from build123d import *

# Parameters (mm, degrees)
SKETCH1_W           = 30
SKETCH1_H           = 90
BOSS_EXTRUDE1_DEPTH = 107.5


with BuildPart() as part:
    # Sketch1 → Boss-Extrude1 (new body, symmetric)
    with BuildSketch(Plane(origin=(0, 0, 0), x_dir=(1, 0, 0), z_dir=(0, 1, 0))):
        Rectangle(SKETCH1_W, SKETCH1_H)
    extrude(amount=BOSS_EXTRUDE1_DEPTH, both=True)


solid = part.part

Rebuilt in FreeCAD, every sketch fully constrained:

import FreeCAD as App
import Part
import Sketcher


def add_polygon(sketch, points):
    """Adds a closed chain of lines whose ends are joined by coincident constraints."""
    first, n = sketch.GeometryCount, len(points)
    for a, b in zip(points, points[1:] + points[:1]):
        sketch.addGeometry(Part.LineSegment(App.Vector(*a, 0), App.Vector(*b, 0)), False)
    for i in range(n):
        sketch.addConstraint(Sketcher.Constraint("Coincident", first + i, 2, first + (i + 1) % n, 1))

doc = App.newDocument("Part")
body = doc.addObject("PartDesign::Body", "Body")

sketch1 = doc.addObject("Sketcher::SketchObject", "Sketch")
body.addObject(sketch1)
sketch1.AttachmentSupport = (doc.XZ_Plane, [""])
sketch1.MapMode = "FlatFace"
add_polygon(sketch1, [(-15, -45), (-15, 45), (15, 45), (15, -45)])
sketch1.addConstraint(Sketcher.Constraint("Vertical", 0))
sketch1.addConstraint(Sketcher.Constraint("Horizontal", 1))
sketch1.addConstraint(Sketcher.Constraint("Vertical", 2))
sketch1.addConstraint(Sketcher.Constraint("Horizontal", 3))
sketch1.addConstraint(Sketcher.Constraint("Symmetric", 0, 2, 2, 2, -1, 1))
sketch1.addConstraint(Sketcher.Constraint("DistanceX", 1, 1, 1, 2, 30.0))
sketch1.addConstraint(Sketcher.Constraint("DistanceY", 0, 1, 0, 2, 90.0))
pad1 = doc.addObject("PartDesign::Pad", "Pad")
body.addObject(pad1)
pad1.Profile = sketch1
pad1.Length = 215
pad1.Midplane = True

doc.recompute()
